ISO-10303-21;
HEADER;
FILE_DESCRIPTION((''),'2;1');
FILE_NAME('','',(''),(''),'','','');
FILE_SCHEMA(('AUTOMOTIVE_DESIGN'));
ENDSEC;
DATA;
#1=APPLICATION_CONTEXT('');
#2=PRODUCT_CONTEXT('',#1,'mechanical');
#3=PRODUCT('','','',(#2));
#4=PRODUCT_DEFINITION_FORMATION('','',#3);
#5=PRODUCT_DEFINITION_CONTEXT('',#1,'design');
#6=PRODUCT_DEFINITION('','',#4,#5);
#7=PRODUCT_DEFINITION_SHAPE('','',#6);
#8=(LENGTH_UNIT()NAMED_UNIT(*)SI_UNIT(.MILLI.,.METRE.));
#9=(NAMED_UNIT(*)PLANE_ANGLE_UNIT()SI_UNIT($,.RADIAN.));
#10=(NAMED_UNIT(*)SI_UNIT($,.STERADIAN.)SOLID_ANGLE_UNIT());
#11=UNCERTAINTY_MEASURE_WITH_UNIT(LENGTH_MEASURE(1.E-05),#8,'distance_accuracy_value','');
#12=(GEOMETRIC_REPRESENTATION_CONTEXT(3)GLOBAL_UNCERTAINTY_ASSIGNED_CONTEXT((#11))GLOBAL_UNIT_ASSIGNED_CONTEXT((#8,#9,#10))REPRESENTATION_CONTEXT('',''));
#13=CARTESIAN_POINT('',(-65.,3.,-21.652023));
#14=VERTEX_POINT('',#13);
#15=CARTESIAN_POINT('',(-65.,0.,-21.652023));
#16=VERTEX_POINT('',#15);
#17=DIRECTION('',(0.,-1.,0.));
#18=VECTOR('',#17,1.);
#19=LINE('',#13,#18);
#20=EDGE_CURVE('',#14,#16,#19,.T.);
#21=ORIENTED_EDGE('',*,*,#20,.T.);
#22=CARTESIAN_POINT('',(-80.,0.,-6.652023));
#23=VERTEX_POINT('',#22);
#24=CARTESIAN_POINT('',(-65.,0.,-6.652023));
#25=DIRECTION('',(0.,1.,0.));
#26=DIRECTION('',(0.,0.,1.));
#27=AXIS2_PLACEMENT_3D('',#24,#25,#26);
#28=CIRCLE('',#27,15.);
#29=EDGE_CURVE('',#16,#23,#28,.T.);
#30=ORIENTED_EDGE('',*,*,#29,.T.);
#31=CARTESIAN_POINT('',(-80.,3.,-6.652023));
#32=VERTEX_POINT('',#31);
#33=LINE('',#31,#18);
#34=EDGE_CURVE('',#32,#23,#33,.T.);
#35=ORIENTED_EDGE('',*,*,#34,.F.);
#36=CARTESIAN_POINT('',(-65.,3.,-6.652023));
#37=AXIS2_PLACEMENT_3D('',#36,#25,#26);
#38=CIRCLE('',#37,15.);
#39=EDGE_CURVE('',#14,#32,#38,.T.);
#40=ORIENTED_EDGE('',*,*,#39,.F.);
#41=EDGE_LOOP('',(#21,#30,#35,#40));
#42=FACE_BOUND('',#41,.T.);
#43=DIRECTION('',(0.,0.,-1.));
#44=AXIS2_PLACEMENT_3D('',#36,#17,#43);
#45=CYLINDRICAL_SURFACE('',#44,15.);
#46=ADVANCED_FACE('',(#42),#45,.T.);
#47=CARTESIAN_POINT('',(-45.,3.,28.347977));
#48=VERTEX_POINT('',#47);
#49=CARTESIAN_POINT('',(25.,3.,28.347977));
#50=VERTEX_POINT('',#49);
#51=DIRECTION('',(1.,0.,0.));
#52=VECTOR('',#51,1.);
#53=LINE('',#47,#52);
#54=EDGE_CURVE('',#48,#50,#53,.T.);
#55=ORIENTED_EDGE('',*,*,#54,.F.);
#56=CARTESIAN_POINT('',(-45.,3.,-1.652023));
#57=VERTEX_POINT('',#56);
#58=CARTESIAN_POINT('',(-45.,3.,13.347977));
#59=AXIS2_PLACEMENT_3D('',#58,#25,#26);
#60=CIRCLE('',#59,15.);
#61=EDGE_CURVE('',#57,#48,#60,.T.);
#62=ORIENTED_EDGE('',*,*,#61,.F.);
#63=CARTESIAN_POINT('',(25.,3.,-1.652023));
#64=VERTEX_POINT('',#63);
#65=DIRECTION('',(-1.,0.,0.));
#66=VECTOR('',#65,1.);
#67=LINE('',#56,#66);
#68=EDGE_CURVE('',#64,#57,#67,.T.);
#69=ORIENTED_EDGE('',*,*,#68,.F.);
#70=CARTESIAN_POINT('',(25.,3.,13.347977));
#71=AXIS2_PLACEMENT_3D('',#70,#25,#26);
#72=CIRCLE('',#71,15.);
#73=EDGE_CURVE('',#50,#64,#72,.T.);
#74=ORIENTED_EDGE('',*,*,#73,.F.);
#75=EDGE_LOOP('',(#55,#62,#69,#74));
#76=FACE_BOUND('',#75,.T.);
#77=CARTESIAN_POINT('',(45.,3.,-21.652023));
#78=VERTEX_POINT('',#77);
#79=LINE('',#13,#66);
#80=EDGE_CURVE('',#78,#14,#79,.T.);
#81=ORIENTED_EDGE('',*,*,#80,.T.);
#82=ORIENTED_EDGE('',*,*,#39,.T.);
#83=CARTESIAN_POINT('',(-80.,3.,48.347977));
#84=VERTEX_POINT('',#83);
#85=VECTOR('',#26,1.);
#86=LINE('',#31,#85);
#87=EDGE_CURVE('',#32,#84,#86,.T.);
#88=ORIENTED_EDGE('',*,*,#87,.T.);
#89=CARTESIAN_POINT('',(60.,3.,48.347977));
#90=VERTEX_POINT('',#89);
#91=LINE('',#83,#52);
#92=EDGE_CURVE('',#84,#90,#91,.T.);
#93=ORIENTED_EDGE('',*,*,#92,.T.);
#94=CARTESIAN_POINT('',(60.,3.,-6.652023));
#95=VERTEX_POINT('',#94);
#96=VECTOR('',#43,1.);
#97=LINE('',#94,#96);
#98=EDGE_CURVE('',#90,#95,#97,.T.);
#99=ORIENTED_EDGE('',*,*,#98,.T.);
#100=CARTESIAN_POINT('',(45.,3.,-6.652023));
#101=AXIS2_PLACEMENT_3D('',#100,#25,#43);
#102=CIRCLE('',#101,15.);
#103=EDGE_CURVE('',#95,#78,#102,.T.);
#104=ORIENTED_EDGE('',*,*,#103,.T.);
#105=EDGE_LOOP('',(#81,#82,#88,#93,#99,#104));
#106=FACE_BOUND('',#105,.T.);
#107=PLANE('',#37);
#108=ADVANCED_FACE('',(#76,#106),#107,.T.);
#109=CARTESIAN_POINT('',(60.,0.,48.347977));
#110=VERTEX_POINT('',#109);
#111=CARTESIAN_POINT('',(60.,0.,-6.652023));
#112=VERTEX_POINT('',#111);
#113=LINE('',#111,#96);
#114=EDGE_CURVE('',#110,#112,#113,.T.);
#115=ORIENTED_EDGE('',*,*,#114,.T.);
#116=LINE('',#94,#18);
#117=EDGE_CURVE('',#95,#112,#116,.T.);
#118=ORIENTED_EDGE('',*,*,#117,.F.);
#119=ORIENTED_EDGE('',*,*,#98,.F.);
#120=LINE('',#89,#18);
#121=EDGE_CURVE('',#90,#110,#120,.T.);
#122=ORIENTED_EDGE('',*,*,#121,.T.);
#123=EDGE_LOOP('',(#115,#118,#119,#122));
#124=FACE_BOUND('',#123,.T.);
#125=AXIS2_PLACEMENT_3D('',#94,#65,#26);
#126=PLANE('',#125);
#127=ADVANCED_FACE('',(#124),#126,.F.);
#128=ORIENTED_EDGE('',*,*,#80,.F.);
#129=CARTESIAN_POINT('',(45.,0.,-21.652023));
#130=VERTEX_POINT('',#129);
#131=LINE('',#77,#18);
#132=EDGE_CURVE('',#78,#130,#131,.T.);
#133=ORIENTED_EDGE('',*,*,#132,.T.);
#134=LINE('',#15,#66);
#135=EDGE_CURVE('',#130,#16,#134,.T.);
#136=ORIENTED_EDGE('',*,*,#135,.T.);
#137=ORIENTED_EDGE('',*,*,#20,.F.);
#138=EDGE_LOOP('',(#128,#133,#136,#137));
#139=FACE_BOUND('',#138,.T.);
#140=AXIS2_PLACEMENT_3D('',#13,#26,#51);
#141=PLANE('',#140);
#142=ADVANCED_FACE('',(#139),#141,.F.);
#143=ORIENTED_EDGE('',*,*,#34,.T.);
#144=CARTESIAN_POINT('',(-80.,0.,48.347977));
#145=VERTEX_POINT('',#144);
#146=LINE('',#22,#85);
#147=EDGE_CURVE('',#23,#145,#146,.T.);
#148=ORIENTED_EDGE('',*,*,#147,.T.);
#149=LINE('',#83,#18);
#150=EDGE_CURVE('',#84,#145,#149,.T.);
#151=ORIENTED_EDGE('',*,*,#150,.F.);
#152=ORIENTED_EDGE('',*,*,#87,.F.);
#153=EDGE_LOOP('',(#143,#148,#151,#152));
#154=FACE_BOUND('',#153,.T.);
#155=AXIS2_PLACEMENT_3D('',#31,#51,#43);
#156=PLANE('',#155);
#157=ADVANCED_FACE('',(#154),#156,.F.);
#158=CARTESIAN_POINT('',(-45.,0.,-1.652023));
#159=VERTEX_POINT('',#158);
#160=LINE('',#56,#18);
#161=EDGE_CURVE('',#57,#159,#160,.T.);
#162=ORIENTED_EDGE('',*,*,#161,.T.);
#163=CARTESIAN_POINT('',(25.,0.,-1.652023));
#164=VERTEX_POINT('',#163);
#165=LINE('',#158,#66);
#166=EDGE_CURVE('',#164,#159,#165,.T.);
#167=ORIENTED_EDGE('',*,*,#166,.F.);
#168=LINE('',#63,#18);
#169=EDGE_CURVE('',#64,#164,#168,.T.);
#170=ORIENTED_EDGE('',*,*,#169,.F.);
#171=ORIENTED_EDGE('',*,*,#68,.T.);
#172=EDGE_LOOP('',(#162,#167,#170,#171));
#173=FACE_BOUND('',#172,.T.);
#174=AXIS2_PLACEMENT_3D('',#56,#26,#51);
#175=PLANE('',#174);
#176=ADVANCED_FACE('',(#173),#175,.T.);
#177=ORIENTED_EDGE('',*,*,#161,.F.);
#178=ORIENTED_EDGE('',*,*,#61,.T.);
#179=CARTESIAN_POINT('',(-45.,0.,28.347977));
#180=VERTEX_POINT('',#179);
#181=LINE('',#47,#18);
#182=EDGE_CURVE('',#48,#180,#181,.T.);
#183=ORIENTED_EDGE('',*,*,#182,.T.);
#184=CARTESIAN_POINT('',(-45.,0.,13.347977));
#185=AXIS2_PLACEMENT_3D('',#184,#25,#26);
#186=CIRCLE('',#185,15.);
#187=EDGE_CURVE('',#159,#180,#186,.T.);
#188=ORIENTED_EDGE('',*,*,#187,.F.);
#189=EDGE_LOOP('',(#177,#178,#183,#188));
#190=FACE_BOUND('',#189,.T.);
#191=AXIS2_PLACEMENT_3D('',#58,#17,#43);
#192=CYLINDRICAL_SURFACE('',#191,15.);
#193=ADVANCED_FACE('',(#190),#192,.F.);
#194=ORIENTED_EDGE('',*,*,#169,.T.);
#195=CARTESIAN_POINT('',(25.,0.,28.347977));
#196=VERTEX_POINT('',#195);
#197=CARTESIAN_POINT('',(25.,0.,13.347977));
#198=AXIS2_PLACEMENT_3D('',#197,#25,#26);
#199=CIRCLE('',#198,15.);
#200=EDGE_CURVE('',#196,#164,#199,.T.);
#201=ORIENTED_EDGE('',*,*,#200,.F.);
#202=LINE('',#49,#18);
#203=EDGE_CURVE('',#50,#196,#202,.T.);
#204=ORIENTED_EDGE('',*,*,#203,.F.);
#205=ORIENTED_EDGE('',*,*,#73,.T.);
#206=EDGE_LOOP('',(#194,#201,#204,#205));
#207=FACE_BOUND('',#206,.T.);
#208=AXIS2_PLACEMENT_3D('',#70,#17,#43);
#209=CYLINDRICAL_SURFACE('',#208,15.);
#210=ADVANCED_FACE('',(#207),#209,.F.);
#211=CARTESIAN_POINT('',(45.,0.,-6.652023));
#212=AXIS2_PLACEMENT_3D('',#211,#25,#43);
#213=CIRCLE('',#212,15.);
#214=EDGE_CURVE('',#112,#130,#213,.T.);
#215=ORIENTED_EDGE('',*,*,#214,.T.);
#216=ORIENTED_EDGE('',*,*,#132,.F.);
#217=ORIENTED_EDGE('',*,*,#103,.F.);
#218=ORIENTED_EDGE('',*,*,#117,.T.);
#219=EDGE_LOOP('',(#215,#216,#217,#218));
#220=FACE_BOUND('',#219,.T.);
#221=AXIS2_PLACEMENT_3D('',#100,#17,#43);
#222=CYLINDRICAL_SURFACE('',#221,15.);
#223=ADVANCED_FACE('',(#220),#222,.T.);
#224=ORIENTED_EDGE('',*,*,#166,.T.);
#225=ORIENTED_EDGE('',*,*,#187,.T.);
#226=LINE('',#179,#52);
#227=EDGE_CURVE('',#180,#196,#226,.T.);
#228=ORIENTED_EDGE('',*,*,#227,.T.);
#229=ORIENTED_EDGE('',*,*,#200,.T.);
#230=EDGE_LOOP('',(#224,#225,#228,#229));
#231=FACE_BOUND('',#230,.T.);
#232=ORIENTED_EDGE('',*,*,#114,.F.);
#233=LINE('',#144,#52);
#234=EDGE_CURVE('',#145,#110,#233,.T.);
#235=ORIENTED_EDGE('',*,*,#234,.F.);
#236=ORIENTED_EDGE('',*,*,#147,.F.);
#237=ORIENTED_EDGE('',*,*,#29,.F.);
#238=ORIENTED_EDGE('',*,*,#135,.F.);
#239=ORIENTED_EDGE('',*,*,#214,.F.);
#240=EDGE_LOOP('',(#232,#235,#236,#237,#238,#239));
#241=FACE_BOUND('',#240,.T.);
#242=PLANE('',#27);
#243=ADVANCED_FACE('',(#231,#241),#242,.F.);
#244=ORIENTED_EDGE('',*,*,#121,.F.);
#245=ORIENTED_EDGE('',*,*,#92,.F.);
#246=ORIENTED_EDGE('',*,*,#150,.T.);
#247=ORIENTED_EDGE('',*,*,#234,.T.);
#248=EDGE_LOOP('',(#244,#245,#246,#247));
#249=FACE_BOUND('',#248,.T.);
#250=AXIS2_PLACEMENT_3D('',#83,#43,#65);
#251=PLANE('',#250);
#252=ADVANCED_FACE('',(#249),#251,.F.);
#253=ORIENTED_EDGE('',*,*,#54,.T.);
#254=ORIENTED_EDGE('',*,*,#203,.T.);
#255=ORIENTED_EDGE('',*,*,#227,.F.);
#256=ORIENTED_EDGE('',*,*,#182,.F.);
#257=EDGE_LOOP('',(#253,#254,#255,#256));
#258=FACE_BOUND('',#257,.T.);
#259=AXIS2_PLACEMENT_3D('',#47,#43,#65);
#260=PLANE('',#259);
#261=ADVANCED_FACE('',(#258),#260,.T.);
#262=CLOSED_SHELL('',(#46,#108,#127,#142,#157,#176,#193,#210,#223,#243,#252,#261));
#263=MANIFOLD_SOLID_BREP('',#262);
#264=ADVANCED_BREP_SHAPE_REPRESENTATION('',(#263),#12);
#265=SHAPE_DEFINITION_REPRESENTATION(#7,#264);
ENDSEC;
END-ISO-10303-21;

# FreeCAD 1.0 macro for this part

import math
import FreeCAD as App
import Part
import Sketcher

doc = App.newDocument("Part")
body = doc.addObject("PartDesign::Body", "Body")

# Sketch on XZ plane
sketch1 = body.newObject("Sketcher::SketchObject", "Sketch")
sketch1.AttachmentSupport = (doc.getObject("XZ_Plane"), [""])
sketch1.MapMode = "FlatFace"
sketch1.addGeometry(Part.LineSegment(App.Vector(45, -22, 0), App.Vector(-65, -22, 0)), False)
sketch1.addGeometry(Part.ArcOfCircle(Part.Circle(App.Vector(-65, -7, 0), App.Vector(0, 0, 1), 15), math.radians(180), math.radians(270)), False)
sketch1.addGeometry(Part.LineSegment(App.Vector(-80, -7, 0), App.Vector(-80, 48, 0)), False)
sketch1.addGeometry(Part.LineSegment(App.Vector(-80, 48, 0), App.Vector(60, 48, 0)), False)
sketch1.addGeometry(Part.LineSegment(App.Vector(60, 48, 0), App.Vector(60, -7, 0)), False)
sketch1.addGeometry(Part.ArcOfCircle(Part.Circle(App.Vector(45, -7, 0), App.Vector(0, 0, 1), 15), math.radians(-90), math.radians(0)), False)
sketch1.addGeometry(Part.LineSegment(App.Vector(-45, -2, 0), App.Vector(25, -2, 0)), False)
sketch1.addGeometry(Part.ArcOfCircle(Part.Circle(App.Vector(25, 13, 0), App.Vector(0, 0, 1), 15), math.radians(-90), math.radians(90)), False)
sketch1.addGeometry(Part.LineSegment(App.Vector(25, 28, 0), App.Vector(-45, 28, 0)), False)
sketch1.addGeometry(Part.ArcOfCircle(Part.Circle(App.Vector(-45, 13, 0), App.Vector(0, 0, 1), 15), math.radians(90), math.radians(270)), False)
sketch1.addConstraint(Sketcher.Constraint("Tangent", 0, 2, 1, 2))
sketch1.addConstraint(Sketcher.Constraint("Tangent", 1, 1, 2, 1))
sketch1.addConstraint(Sketcher.Constraint("Coincident", 2, 2, 3, 1))
sketch1.addConstraint(Sketcher.Constraint("Coincident", 3, 2, 4, 1))
sketch1.addConstraint(Sketcher.Constraint("Tangent", 4, 2, 5, 2))
sketch1.addConstraint(Sketcher.Constraint("Tangent", 5, 1, 0, 1))
sketch1.addConstraint(Sketcher.Constraint("Tangent", 6, 2, 7, 1))
sketch1.addConstraint(Sketcher.Constraint("Tangent", 7, 2, 8, 1))
sketch1.addConstraint(Sketcher.Constraint("Tangent", 8, 2, 9, 1))
sketch1.addConstraint(Sketcher.Constraint("Tangent", 9, 2, 6, 1))
sketch1.addConstraint(Sketcher.Constraint("Horizontal", 0))
sketch1.addConstraint(Sketcher.Constraint("Vertical", 2))
sketch1.addConstraint(Sketcher.Constraint("Horizontal", 3))
sketch1.addConstraint(Sketcher.Constraint("Vertical", 4))
sketch1.addConstraint(Sketcher.Constraint("Horizontal", 6))
sketch1.addConstraint(Sketcher.Constraint("Horizontal", 8))
sketch1.addConstraint(Sketcher.Constraint("Equal", 1, 5))
sketch1.addConstraint(Sketcher.Constraint("Equal", 5, 7))
sketch1.addConstraint(Sketcher.Constraint("Radius", 1, 15.0))
sketch1.addConstraint(Sketcher.Constraint("DistanceX", 0, 2, 0, 1, 110.0))
sketch1.addConstraint(Sketcher.Constraint("DistanceX", 6, 1, 6, 2, 70.0))
sketch1.addConstraint(Sketcher.Constraint("DistanceY", 2, 1, 2, 2, 55.0))
sketch1.addConstraint(Sketcher.Constraint("DistanceX", 1, 3, -1, 1, 65.0))
sketch1.addConstraint(Sketcher.Constraint("DistanceX", -1, 1, 7, 3, 25.0))
sketch1.addConstraint(Sketcher.Constraint("DistanceY", 5, 3, 7, 3, 20.0))
sketch1.addConstraint(Sketcher.Constraint("DistanceY", 1, 3, -1, 1, 6.652023))
pad1 = body.newObject("PartDesign::Pad", "Pad")
pad1.Profile = sketch1
pad1.Length = 3
pad1.Reversed = True

doc.recompute()
